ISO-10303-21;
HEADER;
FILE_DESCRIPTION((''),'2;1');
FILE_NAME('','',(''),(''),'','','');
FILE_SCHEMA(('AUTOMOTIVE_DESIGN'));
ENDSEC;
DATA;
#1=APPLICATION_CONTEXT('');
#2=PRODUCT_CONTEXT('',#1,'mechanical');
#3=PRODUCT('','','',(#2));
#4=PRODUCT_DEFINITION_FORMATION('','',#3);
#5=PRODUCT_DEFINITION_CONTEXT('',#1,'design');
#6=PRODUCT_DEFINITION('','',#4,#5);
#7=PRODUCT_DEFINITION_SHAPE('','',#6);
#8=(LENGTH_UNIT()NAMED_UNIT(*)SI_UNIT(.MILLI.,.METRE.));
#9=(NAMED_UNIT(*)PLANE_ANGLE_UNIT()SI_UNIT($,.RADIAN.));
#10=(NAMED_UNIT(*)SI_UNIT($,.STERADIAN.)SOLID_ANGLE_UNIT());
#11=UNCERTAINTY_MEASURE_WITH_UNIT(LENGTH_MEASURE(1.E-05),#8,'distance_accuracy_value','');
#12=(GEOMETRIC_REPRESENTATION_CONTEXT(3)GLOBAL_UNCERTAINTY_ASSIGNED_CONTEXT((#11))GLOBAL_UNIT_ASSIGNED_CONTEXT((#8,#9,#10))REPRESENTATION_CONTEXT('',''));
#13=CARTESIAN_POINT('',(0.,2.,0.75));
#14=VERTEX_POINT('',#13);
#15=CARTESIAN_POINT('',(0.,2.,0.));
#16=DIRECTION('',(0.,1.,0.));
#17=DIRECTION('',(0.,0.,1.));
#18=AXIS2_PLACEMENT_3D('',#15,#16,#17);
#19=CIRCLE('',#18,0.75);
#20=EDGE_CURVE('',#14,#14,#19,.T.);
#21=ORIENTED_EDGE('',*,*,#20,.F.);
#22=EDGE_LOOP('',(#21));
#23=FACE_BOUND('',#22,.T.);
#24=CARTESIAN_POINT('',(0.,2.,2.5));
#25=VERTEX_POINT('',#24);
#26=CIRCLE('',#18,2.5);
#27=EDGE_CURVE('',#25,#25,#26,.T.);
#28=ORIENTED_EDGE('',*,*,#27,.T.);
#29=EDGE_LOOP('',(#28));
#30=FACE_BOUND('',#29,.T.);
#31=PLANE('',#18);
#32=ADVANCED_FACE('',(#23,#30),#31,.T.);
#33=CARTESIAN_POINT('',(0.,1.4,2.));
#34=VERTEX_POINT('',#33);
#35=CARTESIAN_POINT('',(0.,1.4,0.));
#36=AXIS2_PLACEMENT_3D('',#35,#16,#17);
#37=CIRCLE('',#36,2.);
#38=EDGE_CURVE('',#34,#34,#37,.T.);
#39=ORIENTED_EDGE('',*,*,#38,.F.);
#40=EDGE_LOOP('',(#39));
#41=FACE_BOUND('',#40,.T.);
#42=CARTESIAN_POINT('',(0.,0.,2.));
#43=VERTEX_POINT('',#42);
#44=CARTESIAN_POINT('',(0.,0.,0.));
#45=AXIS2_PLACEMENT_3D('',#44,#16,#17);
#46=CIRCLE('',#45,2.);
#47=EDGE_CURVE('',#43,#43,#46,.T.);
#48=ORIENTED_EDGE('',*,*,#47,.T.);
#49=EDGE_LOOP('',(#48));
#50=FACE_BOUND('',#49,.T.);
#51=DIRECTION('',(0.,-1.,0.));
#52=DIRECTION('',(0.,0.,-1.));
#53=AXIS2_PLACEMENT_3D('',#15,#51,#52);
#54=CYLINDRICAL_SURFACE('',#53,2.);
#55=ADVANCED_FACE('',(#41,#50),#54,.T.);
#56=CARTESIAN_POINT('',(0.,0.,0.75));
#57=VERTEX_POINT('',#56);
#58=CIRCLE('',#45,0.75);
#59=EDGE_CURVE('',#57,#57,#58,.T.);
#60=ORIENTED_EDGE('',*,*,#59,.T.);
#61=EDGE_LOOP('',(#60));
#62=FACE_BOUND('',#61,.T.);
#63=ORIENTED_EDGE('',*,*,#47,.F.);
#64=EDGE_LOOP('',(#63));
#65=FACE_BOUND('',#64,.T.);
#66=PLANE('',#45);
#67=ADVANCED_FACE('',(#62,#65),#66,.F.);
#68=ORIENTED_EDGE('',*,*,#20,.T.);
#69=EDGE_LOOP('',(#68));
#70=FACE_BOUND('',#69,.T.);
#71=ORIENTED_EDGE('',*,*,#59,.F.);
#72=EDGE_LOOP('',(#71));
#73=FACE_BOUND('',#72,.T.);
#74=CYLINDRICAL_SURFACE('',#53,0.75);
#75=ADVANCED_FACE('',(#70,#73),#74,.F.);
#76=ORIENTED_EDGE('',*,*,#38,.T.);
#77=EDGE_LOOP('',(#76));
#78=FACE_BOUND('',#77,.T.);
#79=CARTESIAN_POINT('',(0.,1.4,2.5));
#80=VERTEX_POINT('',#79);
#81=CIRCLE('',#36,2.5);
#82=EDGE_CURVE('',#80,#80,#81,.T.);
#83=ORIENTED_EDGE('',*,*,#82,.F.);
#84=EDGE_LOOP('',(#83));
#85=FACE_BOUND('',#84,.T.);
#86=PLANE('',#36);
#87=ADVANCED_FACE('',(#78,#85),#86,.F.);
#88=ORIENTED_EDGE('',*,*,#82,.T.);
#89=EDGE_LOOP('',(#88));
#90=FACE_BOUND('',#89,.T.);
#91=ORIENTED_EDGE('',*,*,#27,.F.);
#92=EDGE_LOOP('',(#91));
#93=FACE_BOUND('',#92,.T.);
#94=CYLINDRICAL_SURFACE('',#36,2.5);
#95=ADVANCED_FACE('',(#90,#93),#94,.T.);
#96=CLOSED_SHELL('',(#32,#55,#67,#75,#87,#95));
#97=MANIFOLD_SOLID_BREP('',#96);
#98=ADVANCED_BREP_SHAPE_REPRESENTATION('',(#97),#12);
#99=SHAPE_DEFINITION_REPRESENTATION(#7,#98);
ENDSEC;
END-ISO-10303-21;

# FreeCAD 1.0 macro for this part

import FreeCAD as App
import Part
import Sketcher
from FreeCAD import Vector
Q = App.Units.Quantity

doc = App.newDocument("Part")
body = doc.addObject("PartDesign::Body", "Body")

# Sketch on XZ plane
sketch1 = body.newObject("Sketcher::SketchObject", "Sketch")
sketch1.AttachmentSupport = (doc.getObject("XZ_Plane"), [""])
sketch1.MapMode = "FlatFace"
sketch1.addGeometry([
    Part.Circle(Vector(0, 0, 0), Vector(0, 0, 1), 2),
    Part.Circle(Vector(0, 0, 0), Vector(0, 0, 1), 0.75),
], False)
sketch1.addConstraint([
    Sketcher.Constraint("Coincident", 0, 3, -1, 1),
    Sketcher.Constraint("Coincident", 1, 3, -1, 1),
    Sketcher.Constraint("Diameter", 0, Q("4 mm")),
    Sketcher.Constraint("Diameter", 1, Q("1.5 mm")),
])
pad1 = body.newObject("PartDesign::Pad", "Pad")
pad1.Profile = sketch1
pad1.Length = 2
pad1.Reversed = True

# Sketch on XZ plane
sketch2 = body.newObject("Sketcher::SketchObject", "Sketch001")
sketch2.AttachmentSupport = (doc.getObject("XZ_Plane"), [""])
sketch2.MapMode = "FlatFace"
sketch2.AttachmentOffset = App.Placement(Vector(0, 0, -2), App.Rotation())
sketch2.addGeometry([
    Part.Circle(Vector(0, 0, 0), Vector(0, 0, 1), 2.5),
    Part.Circle(Vector(0, 0, 0), Vector(0, 0, 1), 2),
], False)
sketch2.addConstraint([
    Sketcher.Constraint("Coincident", 0, 3, -1, 1),
    Sketcher.Constraint("Coincident", 1, 3, -1, 1),
    Sketcher.Constraint("Diameter", 0, Q("5 mm")),
    Sketcher.Constraint("Diameter", 1, Q("4 mm")),
])
pad2 = body.newObject("PartDesign::Pad", "Pad001")
pad2.Profile = sketch2
pad2.Length = 0.6

doc.recompute()
